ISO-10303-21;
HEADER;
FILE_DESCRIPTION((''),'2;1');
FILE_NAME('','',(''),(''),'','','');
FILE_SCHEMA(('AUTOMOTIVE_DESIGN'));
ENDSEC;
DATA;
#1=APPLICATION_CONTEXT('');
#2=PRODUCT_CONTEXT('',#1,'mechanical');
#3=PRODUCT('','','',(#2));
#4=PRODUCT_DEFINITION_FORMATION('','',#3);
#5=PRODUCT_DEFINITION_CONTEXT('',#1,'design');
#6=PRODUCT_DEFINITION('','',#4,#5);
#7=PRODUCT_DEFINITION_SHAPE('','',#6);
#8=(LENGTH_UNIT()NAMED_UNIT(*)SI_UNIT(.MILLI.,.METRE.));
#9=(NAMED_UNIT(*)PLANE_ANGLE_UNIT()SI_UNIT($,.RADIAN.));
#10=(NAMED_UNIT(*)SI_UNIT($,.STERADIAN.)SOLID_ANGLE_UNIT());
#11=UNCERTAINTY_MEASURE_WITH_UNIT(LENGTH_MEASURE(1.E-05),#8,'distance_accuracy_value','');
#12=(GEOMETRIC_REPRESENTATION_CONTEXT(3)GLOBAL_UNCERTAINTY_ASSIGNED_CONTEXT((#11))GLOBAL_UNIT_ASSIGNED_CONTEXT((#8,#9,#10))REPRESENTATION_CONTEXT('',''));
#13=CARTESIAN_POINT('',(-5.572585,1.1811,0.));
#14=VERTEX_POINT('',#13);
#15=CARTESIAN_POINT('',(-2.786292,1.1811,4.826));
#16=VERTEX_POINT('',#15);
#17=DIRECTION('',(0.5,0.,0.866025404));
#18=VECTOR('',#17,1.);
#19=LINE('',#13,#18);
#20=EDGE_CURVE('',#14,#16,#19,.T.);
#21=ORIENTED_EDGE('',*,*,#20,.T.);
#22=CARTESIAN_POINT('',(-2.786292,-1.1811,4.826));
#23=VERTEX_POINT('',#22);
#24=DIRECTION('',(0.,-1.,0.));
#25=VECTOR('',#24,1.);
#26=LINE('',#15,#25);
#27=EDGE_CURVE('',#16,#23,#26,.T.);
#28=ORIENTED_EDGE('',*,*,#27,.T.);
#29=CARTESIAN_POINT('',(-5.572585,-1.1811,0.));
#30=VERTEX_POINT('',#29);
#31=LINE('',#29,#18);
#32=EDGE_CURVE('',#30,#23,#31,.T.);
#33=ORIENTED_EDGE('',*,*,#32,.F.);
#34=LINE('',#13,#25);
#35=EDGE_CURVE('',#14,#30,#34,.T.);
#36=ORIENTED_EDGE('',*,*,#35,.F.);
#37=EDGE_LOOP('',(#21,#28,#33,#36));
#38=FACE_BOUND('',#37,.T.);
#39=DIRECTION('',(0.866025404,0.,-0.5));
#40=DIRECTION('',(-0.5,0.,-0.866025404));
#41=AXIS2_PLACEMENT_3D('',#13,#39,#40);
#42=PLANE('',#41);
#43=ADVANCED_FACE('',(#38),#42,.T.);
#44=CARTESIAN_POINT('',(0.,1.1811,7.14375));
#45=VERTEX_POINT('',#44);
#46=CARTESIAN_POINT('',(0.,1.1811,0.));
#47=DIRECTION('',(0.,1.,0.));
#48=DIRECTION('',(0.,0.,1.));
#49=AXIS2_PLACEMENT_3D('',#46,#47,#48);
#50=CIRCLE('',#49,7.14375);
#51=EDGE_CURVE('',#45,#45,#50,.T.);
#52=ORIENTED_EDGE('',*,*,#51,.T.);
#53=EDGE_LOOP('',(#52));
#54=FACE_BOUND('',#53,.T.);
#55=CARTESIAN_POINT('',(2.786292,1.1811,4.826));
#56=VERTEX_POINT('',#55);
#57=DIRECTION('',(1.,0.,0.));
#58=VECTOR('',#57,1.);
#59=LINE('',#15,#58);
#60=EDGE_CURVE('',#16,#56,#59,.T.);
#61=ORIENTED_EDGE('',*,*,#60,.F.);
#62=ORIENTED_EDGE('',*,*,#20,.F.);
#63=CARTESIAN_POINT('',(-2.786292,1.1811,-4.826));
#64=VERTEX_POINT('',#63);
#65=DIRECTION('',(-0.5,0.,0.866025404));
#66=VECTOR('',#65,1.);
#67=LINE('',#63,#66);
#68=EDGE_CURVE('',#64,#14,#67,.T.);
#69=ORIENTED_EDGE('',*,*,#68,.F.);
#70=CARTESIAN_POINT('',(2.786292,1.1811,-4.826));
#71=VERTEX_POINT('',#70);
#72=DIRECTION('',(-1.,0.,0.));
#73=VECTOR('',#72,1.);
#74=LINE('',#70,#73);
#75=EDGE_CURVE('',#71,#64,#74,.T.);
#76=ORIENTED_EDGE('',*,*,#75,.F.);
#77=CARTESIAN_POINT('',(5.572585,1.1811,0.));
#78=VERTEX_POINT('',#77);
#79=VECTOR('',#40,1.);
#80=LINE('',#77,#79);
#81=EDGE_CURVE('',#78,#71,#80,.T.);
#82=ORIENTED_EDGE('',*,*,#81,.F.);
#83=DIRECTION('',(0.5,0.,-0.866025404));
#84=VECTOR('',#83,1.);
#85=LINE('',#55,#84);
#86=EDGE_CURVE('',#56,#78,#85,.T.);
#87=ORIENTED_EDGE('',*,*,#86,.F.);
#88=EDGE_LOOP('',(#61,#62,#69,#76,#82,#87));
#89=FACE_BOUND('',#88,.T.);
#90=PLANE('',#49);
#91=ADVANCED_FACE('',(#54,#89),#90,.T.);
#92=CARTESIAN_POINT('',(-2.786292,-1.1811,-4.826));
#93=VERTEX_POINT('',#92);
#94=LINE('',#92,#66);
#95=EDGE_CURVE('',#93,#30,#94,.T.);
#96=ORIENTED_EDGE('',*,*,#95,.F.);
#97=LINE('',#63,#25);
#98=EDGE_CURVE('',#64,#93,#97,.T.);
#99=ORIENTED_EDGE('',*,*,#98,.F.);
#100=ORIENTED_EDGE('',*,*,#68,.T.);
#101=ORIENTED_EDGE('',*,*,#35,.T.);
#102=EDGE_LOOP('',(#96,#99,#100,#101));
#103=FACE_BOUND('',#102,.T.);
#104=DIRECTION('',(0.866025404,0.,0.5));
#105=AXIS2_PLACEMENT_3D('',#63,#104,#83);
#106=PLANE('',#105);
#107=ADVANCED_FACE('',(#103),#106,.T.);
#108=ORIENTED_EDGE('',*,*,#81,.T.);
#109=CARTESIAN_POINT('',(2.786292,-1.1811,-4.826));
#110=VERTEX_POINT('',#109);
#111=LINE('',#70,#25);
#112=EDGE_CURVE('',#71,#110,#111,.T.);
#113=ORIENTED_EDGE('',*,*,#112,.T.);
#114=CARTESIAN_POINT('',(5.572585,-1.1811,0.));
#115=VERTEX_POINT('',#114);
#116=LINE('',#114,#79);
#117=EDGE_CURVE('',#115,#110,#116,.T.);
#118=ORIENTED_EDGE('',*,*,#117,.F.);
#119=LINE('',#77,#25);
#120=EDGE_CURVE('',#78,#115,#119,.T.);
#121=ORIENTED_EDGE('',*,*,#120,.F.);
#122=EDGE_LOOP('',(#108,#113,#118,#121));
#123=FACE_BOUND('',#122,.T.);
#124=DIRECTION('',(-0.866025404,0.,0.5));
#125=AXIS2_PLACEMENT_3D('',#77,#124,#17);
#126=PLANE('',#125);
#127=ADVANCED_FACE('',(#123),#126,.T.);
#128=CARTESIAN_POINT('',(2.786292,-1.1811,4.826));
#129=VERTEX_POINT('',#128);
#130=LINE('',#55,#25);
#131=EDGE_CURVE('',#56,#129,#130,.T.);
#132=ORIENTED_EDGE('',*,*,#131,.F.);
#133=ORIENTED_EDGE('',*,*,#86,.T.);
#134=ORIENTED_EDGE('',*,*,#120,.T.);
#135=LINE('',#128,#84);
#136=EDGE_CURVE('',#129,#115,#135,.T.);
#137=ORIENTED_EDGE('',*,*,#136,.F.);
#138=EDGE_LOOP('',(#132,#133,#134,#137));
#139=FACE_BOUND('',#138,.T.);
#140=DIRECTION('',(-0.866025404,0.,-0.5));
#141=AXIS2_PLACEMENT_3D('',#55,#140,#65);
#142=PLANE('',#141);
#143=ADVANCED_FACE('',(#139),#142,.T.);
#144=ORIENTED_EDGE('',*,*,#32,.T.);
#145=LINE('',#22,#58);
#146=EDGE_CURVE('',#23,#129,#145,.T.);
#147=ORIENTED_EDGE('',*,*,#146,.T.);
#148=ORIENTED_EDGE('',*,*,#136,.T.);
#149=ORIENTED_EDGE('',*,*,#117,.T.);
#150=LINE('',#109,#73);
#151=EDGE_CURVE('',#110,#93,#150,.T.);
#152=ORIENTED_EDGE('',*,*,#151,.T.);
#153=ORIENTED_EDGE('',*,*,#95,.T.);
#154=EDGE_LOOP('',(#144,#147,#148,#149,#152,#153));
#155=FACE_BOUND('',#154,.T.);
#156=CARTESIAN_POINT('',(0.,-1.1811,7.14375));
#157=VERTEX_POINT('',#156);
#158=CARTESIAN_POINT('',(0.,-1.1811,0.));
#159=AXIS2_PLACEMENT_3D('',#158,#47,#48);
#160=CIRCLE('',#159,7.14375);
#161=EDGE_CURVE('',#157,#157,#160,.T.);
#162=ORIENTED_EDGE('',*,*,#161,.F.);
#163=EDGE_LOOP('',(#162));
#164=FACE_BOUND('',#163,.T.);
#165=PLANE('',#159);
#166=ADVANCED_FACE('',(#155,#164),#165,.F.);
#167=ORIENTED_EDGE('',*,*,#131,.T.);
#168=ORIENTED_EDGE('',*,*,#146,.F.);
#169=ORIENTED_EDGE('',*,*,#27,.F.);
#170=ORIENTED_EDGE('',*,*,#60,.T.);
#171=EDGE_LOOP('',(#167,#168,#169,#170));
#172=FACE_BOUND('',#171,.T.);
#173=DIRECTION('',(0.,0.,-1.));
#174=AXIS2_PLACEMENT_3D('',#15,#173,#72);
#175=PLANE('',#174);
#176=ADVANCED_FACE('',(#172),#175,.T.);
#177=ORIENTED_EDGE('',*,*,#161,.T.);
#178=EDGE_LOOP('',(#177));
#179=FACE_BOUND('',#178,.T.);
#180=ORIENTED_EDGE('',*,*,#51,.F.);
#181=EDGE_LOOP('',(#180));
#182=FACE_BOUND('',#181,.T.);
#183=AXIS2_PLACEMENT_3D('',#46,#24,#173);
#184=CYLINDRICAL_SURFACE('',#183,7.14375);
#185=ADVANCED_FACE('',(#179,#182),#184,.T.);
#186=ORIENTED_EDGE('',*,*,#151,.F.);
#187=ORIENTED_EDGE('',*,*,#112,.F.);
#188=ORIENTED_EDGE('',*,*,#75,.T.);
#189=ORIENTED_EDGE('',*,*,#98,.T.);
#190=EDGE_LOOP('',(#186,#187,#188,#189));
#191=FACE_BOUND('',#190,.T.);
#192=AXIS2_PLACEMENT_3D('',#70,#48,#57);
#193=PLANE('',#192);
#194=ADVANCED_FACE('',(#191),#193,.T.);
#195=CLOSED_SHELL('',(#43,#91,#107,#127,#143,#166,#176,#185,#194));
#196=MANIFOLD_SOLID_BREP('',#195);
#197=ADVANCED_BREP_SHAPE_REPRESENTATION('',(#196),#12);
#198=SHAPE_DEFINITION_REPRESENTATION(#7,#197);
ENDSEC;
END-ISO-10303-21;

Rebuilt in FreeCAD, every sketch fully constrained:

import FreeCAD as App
import Part
import Sketcher
Q = App.Units.Quantity

doc = App.newDocument("Part")
body = doc.addObject("PartDesign::Body", "Body")

# Sketch on XZ plane
sketch1 = body.newObject("Sketcher::SketchObject", "Sketch")
sketch1.AttachmentSupport = (doc.getObject("XZ_Plane"), [""])
sketch1.MapMode = "FlatFace"
sketch1.addGeometry([
    Part.Circle(App.Vector(0, 0, 0), App.Vector(0, 0, 1), 7),  # 0
    Part.LineSegment(App.Vector(6, 0, 0), App.Vector(3, 5, 0)),  # 1
    Part.LineSegment(App.Vector(3, 5, 0), App.Vector(-3, 5, 0)),  # 2
    Part.LineSegment(App.Vector(-3, 5, 0), App.Vector(-6, 0, 0)),  # 3
    Part.LineSegment(App.Vector(-6, 0, 0), App.Vector(-3, -5, 0)),  # 4
    Part.LineSegment(App.Vector(-3, -5, 0), App.Vector(3, -5, 0)),  # 5
    Part.LineSegment(App.Vector(3, -5, 0), App.Vector(6, 0, 0)),  # 6
], False)
sketch1.addConstraint([
    Sketcher.Constraint("Coincident", 1, 2, 2, 1),
    Sketcher.Constraint("Coincident", 2, 2, 3, 1),
    Sketcher.Constraint("Coincident", 3, 2, 4, 1),
    Sketcher.Constraint("Coincident", 4, 2, 5, 1),
    Sketcher.Constraint("Coincident", 5, 2, 6, 1),
    Sketcher.Constraint("Coincident", 6, 2, 1, 1),
    Sketcher.Constraint("Horizontal", 2),
    Sketcher.Constraint("Horizontal", 5),
    Sketcher.Constraint("Coincident", 0, 3, -1, 1),
    Sketcher.Constraint("Symmetric", 1, 2, 4, 2, -1, 1),
    Sketcher.Constraint("Symmetric", 3, 2, 6, 2, -1, 1),
    Sketcher.Constraint("PointOnObject", 3, 2, -1),
    Sketcher.Constraint("Parallel", 3, 6),
    Sketcher.Constraint("Vertical", 2, 2, 4, 2),
    Sketcher.Constraint("Diameter", 0, Q("0.5625 in")),
    Sketcher.Constraint("Angle", 1, Q("120 deg")),
    Sketcher.Constraint("DistanceY", -1, 1, 1, 2, Q("0.19 in")),
    Sketcher.Constraint("DistanceX", 2, 2, 2, 1, Q("5.572585 mm")),
])
pad1 = body.newObject("PartDesign::Pad", "Pad")
pad1.Profile = sketch1
pad1.Length = Q("0.093 in")
pad1.Midplane = True

doc.recompute()
